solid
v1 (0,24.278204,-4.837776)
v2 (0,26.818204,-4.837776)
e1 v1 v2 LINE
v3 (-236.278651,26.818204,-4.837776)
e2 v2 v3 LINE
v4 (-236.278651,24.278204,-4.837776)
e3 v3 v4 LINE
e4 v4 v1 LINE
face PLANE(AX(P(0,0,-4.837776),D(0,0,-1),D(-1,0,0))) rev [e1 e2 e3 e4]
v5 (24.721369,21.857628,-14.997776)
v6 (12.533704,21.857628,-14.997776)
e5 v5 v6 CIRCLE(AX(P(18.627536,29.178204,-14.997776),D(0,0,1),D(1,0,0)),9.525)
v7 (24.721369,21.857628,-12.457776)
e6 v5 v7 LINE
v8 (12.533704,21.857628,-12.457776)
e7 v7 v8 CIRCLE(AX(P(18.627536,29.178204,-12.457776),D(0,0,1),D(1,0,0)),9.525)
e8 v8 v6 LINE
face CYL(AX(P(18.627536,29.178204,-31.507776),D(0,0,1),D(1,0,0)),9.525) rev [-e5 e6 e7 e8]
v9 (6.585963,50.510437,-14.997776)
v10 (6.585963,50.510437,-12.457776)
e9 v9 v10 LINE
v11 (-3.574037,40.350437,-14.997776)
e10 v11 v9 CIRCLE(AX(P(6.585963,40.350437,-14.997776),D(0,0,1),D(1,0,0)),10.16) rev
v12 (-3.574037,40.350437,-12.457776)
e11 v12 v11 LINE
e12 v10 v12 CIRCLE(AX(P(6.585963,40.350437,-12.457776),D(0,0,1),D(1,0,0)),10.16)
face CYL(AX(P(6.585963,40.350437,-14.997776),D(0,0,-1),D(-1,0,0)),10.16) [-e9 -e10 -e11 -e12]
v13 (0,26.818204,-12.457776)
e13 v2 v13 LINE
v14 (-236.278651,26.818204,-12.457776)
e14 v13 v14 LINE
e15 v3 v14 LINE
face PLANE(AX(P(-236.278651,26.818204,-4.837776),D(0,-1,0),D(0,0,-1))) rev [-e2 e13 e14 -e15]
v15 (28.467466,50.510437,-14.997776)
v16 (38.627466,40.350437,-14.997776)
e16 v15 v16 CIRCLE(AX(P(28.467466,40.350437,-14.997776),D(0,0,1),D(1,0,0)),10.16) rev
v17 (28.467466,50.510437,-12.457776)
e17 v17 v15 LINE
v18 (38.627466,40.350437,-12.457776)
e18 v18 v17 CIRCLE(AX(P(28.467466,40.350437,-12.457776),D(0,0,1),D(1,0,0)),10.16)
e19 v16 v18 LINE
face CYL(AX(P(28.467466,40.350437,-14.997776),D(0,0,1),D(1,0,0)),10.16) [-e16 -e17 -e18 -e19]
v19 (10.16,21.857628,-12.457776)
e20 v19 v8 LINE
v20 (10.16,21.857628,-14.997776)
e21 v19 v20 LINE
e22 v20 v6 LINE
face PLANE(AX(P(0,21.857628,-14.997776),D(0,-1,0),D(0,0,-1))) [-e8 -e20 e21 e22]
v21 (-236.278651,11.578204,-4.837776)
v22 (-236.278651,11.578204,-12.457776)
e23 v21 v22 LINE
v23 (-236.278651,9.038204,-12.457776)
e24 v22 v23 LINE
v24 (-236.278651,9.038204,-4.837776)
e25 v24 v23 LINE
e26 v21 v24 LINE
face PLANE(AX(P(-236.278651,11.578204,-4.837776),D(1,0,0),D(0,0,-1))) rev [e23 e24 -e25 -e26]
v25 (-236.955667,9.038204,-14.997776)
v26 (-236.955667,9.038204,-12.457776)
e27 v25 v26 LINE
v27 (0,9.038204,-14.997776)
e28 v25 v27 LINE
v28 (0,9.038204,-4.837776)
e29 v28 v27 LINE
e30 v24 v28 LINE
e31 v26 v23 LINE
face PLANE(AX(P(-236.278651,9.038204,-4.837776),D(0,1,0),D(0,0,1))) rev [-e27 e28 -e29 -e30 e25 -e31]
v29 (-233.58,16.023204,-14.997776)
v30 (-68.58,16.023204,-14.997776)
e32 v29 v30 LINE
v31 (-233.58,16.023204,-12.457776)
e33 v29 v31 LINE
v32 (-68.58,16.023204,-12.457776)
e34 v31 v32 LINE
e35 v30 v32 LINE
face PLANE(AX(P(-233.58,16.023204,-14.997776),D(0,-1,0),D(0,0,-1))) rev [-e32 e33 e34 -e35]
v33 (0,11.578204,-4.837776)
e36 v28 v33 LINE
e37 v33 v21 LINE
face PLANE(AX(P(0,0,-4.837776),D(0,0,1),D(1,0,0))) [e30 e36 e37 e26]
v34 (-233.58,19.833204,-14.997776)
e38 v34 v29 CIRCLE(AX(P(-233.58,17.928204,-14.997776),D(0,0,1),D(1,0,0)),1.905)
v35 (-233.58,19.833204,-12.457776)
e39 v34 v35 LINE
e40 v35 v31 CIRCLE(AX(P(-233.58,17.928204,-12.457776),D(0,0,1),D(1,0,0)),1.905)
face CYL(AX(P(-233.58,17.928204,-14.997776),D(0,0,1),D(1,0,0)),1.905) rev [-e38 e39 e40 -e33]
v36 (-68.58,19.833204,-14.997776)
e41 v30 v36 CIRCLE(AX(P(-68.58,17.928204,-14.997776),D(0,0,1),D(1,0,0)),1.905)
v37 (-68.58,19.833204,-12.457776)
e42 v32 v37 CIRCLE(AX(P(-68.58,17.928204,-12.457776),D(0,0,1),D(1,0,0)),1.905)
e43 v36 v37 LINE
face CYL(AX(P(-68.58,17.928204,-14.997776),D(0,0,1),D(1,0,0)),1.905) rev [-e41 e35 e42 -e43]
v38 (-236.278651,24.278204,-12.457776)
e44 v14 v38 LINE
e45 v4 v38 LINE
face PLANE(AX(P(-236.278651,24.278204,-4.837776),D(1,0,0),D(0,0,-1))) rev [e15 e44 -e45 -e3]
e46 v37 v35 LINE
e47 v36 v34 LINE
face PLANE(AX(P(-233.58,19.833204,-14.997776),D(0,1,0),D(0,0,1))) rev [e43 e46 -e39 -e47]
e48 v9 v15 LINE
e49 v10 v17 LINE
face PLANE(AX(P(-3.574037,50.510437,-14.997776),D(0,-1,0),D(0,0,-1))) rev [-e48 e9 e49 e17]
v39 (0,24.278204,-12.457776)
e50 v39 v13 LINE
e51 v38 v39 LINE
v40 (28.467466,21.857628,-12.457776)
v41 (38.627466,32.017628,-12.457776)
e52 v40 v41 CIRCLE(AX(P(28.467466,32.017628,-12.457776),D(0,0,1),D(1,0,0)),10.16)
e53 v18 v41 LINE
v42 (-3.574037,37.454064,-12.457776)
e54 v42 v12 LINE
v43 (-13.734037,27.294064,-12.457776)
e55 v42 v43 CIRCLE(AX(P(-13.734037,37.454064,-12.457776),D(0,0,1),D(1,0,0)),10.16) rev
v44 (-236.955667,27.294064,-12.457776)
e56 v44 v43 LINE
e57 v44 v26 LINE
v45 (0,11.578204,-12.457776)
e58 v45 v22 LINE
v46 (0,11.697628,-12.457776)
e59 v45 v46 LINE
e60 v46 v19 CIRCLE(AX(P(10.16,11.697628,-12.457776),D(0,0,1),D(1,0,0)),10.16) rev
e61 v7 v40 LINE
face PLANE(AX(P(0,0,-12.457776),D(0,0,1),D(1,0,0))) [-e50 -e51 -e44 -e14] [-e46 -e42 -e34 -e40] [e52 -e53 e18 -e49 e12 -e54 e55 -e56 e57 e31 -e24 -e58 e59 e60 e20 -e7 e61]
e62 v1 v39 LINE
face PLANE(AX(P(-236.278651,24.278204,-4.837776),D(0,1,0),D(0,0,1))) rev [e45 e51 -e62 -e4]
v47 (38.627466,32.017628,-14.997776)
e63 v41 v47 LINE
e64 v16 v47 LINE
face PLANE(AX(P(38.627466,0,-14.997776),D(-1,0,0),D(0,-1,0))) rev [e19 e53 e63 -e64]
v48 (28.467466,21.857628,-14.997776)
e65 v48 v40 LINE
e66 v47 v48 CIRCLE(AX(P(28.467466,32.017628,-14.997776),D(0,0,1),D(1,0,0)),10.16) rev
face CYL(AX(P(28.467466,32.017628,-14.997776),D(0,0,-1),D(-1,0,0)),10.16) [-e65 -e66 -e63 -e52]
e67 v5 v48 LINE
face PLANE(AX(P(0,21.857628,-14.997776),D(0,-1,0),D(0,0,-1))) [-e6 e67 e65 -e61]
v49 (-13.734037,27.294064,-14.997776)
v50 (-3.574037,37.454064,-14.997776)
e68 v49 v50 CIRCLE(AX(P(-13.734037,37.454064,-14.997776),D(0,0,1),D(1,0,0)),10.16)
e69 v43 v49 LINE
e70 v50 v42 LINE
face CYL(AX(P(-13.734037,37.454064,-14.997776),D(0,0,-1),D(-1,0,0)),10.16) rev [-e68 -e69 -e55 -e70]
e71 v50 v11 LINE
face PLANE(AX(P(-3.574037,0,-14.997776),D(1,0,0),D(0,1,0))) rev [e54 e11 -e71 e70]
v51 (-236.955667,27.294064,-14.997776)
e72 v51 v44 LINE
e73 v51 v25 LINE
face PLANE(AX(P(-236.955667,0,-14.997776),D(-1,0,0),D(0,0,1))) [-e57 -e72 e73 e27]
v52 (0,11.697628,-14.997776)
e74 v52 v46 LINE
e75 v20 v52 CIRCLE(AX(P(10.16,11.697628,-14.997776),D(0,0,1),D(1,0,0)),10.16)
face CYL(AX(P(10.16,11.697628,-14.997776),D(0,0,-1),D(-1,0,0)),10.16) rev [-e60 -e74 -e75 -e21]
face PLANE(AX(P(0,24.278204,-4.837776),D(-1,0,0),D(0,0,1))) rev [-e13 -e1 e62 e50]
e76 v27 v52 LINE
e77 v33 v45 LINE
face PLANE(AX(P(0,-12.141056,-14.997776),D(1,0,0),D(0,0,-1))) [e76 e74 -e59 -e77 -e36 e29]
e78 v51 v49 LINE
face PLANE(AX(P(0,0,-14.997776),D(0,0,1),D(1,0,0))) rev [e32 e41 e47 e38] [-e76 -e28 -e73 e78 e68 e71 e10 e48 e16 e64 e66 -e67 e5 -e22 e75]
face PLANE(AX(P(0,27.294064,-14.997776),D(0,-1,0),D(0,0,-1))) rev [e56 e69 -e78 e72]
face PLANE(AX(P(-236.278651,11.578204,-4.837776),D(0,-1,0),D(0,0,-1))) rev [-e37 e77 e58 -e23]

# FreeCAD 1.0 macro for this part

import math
import FreeCAD as App
import Part
import Sketcher
Q = App.Units.Quantity


def edges_at(feature, points):
    """Names of the edges that pass closest to the given points."""
    edges = feature.Shape.Edges
    near = lambda p: min(range(len(edges)), key=lambda i: edges[i].distToShape(Part.Vertex(*p))[0])
    return sorted({f"Edge{near(p) + 1}" for p in points})


def add_polygon(sketch, points):
    """Adds a closed chain of lines whose ends are joined by coincident constraints."""
    first, n = sketch.GeometryCount, len(points)
    for a, b in zip(points, points[1:] + points[:1]):
        sketch.addGeometry(Part.LineSegment(App.Vector(*a, 0), App.Vector(*b, 0)), False)
    for i in range(n):
        sketch.addConstraint(Sketcher.Constraint("Coincident", first + i, 2, first + (i + 1) % n, 1))

doc = App.newDocument("Part")
body = doc.addObject("PartDesign::Body", "Body")

sketch1 = body.newObject("Sketcher::SketchObject", "Sketch")
sketch1.AttachmentSupport = (doc.getObject("XY_Plane"), [""])
sketch1.MapMode = "FlatFace"
sketch1.AttachmentOffset = App.Placement(App.Vector(0, 0, -12.457776), App.Rotation())
add_polygon(sketch1, [(127, 85.4), (-279.4, 85.4), (-279.4, -12.1), (0, -12.1), (0, 21.9), (127, 21.9)])
sketch1.addGeometry(Part.LineSegment(App.Vector(-233.6, 19.8, 0), App.Vector(-68.6, 19.8, 0)), False)
sketch1.addGeometry(Part.ArcOfCircle(Part.Circle(App.Vector(-68.6, 17.9, 0), App.Vector(0, 0, 1), 1.9), math.radians(-90), math.radians(90)), False)
sketch1.addGeometry(Part.LineSegment(App.Vector(-68.6, 16, 0), App.Vector(-233.6, 16, 0)), False)
sketch1.addGeometry(Part.ArcOfCircle(Part.Circle(App.Vector(-233.6, 17.9, 0), App.Vector(0, 0, 1), 1.9), math.radians(90), math.radians(270)), False)
sketch1.addConstraint(Sketcher.Constraint("Tangent", 6, 2, 7, 2))
sketch1.addConstraint(Sketcher.Constraint("Tangent", 7, 1, 8, 1))
sketch1.addConstraint(Sketcher.Constraint("Tangent", 8, 2, 9, 2))
sketch1.addConstraint(Sketcher.Constraint("Tangent", 9, 1, 6, 1))
sketch1.addConstraint(Sketcher.Constraint("Horizontal", 0))
sketch1.addConstraint(Sketcher.Constraint("Vertical", 1))
sketch1.addConstraint(Sketcher.Constraint("Horizontal", 2))
sketch1.addConstraint(Sketcher.Constraint("Vertical", 3))
sketch1.addConstraint(Sketcher.Constraint("Horizontal", 4))
sketch1.addConstraint(Sketcher.Constraint("Vertical", 5))
sketch1.addConstraint(Sketcher.Constraint("Horizontal", 6))
sketch1.addConstraint(Sketcher.Constraint("Horizontal", 8))
sketch1.addConstraint(Sketcher.Constraint("PointOnObject", 2, 2, -2))
sketch1.addConstraint(Sketcher.Constraint("DistanceX", 0, 2, 0, 1, Q("16 in")))
sketch1.addConstraint(Sketcher.Constraint("DistanceX", 2, 1, 2, 2, Q("11 in")))
sketch1.addConstraint(Sketcher.Constraint("DistanceY", 5, 1, 5, 2, Q("2.5 in")))
sketch1.addConstraint(Sketcher.Constraint("Radius", 7, Q("0.075 in")))
sketch1.addConstraint(Sketcher.Constraint("DistanceX", 7, 3, -1, 1, Q("2.7 in")))
sketch1.addConstraint(Sketcher.Constraint("DistanceX", 6, 1, 6, 2, Q("165 mm")))
sketch1.addConstraint(Sketcher.Constraint("DistanceY", 1, 2, 1, 1, Q("97.498684 mm")))
sketch1.addConstraint(Sketcher.Constraint("DistanceY", -1, 1, 0, 2, Q("85.357628 mm")))
sketch1.addConstraint(Sketcher.Constraint("DistanceY", 1, 2, 9, 3, Q("30.06926 mm")))
pad1 = body.newObject("PartDesign::Pad", "Pad")
pad1.Profile = sketch1
pad1.Length = Q("0.1 in")
pad1.Reversed = True

sketch2 = body.newObject("Sketcher::SketchObject", "Sketch001")
sketch2.AttachmentSupport = (doc.getObject("XY_Plane"), [""])
sketch2.MapMode = "FlatFace"
sketch2.AttachmentOffset = App.Placement(App.Vector(0, 0, -12.457776), App.Rotation())
sketch2.addGeometry(Part.Circle(App.Vector(19, 29, 0), App.Vector(0, 0, 1), 10), False)
sketch2.addConstraint(Sketcher.Constraint("Diameter", 0, Q("0.75 in")))
sketch2.addConstraint(Sketcher.Constraint("DistanceX", -1, 1, 0, 3, Q("18.627536 mm")))
sketch2.addConstraint(Sketcher.Constraint("DistanceY", -1, 1, 0, 3, Q("29.178204 mm")))
pocket1 = body.newObject("PartDesign::Pocket", "Pocket")
pocket1.Profile = sketch2
pocket1.Length = Q("0.75 in")

sketch3 = body.newObject("Sketcher::SketchObject", "Sketch002")
sketch3.AttachmentSupport = (doc.getObject("XY_Plane"), [""])
sketch3.MapMode = "FlatFace"
sketch3.AttachmentOffset = App.Placement(App.Vector(0, 0, -12.457776), App.Rotation())
add_polygon(sketch3, [(-236.3, 26.8), (-236.3, 24.3), (0, 24.3), (0, 26.8)])
add_polygon(sketch3, [(-236.3, 11.6), (-236.3, 9), (0, 9), (0, 11.6)])
sketch3.addConstraint(Sketcher.Constraint("Vertical", 0))
sketch3.addConstraint(Sketcher.Constraint("Horizontal", 1))
sketch3.addConstraint(Sketcher.Constraint("Vertical", 2))
sketch3.addConstraint(Sketcher.Constraint("Horizontal", 3))
sketch3.addConstraint(Sketcher.Constraint("Vertical", 4))
sketch3.addConstraint(Sketcher.Constraint("Horizontal", 5))
sketch3.addConstraint(Sketcher.Constraint("Vertical", 6))
sketch3.addConstraint(Sketcher.Constraint("Horizontal", 7))
sketch3.addConstraint(Sketcher.Constraint("PointOnObject", 1, 2, -2))
sketch3.addConstraint(Sketcher.Constraint("PointOnObject", 5, 2, -2))
sketch3.addConstraint(Sketcher.Constraint("Vertical", 3, 2, 4, 2))
sketch3.addConstraint(Sketcher.Constraint("Equal", 2, 4))
sketch3.addConstraint(Sketcher.Constraint("DistanceY", 0, 2, 0, 1, Q("0.1 in")))
sketch3.addConstraint(Sketcher.Constraint("DistanceY", 4, 2, 0, 2, Q("0.6 in")))
sketch3.addConstraint(Sketcher.Constraint("DistanceX", 1, 1, 1, 2, Q("236.278651 mm")))
sketch3.addConstraint(Sketcher.Constraint("DistanceY", -1, 1, 0, 2, Q("24.278204 mm")))
pad2 = body.newObject("PartDesign::Pad", "Pad001")
pad2.Profile = sketch3
pad2.Length = Q("0.3 in")

sketch4 = body.newObject("Sketcher::SketchObject", "Sketch003")
sketch4.AttachmentSupport = (doc.getObject("XY_Plane"), [""])
sketch4.MapMode = "FlatFace"
sketch4.AttachmentOffset = App.Placement(App.Vector(0, 0, -12.457776), App.Rotation())
add_polygon(sketch4, [(-279.4, -12.1), (0, -12.1), (0, 9), (-237, 9), (-237, 27.3), (-3.6, 27.3), (-3.6, 50.5), (38.6, 50.5), (38.6, 2.9), (133.3, 2.9), (133.3, 92.1), (38.6, 92.1), (38.6, 93.8), (-279.4, 93.8)])
sketch4.addConstraint(Sketcher.Constraint("Horizontal", 0))
sketch4.addConstraint(Sketcher.Constraint("Vertical", 1))
sketch4.addConstraint(Sketcher.Constraint("Horizontal", 2))
sketch4.addConstraint(Sketcher.Constraint("Vertical", 3))
sketch4.addConstraint(Sketcher.Constraint("Horizontal", 4))
sketch4.addConstraint(Sketcher.Constraint("Vertical", 5))
sketch4.addConstraint(Sketcher.Constraint("Horizontal", 6))
sketch4.addConstraint(Sketcher.Constraint("Vertical", 7))
sketch4.addConstraint(Sketcher.Constraint("Horizontal", 8))
sketch4.addConstraint(Sketcher.Constraint("Vertical", 9))
sketch4.addConstraint(Sketcher.Constraint("Horizontal", 10))
sketch4.addConstraint(Sketcher.Constraint("Vertical", 11))
sketch4.addConstraint(Sketcher.Constraint("Horizontal", 12))
sketch4.addConstraint(Sketcher.Constraint("Vertical", 13))
sketch4.addConstraint(Sketcher.Constraint("PointOnObject", 0, 2, -2))
sketch4.addConstraint(Sketcher.Constraint("Vertical", 7, 2, 10, 2))
sketch4.addConstraint(Sketcher.Constraint("DistanceX", 0, 1, 0, 2, Q("11 in")))
sketch4.addConstraint(Sketcher.Constraint("DistanceY", -1, 1, 5, 2, Q("1.9885999 in")))
sketch4.addConstraint(Sketcher.Constraint("DistanceX", 4, 1, 4, 2, Q("233.38163 mm")))
sketch4.addConstraint(Sketcher.Constraint("DistanceX", 8, 1, 8, 2, Q("94.707842 mm")))
sketch4.addConstraint(Sketcher.Constraint("DistanceY", 1, 1, 1, 2, Q("21.17926 mm")))
sketch4.addConstraint(Sketcher.Constraint("DistanceY", 3, 1, 3, 2, Q("18.25586 mm")))
sketch4.addConstraint(Sketcher.Constraint("DistanceY", 7, 2, 7, 1, Q("47.65092 mm")))
sketch4.addConstraint(Sketcher.Constraint("DistanceY", 11, 1, 11, 2, Q("1.62303 mm")))
sketch4.addConstraint(Sketcher.Constraint("DistanceY", 13, 2, 13, 1, Q("105.910359 mm")))
sketch4.addConstraint(Sketcher.Constraint("DistanceX", 2, 2, 2, 1, Q("236.955667 mm")))
sketch4.addConstraint(Sketcher.Constraint("DistanceX", 6, 1, 6, 2, Q("42.201504 mm")))
sketch4.addConstraint(Sketcher.Constraint("DistanceY", 5, 1, 5, 2, Q("23.216373 mm")))
pocket2 = body.newObject("PartDesign::Pocket", "Pocket001")
pocket2.Profile = sketch4
pocket2.Type = "ThroughAll"
doc.recompute()

fillet = body.newObject("PartDesign::Fillet", "Fillet")
fillet.Base = (pocket2, edges_at(pocket2, [
    (0, 21.858, -13.728),
    (-3.574, 27.294, -13.728),
    (38.627, 21.858, -13.728),
    (-3.574, 50.51, -13.728),
    (38.627, 50.51, -13.728),
]))
fillet.Radius = Q("0.4 in")

doc.recompute()
